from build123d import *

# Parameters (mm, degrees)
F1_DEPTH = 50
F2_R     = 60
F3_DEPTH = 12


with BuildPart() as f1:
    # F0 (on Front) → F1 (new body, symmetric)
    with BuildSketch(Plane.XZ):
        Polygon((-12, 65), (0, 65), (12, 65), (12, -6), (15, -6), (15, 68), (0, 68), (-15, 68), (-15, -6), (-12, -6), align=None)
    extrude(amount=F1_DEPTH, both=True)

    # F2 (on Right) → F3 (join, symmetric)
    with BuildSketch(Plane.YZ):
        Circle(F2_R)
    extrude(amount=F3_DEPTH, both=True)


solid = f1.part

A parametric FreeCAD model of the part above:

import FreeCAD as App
import Part
import Sketcher


def add_polygon(sketch, points):
    """Adds a closed chain of lines whose ends are joined by coincident constraints."""
    first, n = sketch.GeometryCount, len(points)
    for a, b in zip(points, points[1:] + points[:1]):
        sketch.addGeometry(Part.LineSegment(App.Vector(*a, 0), App.Vector(*b, 0)), False)
    for i in range(n):
        sketch.addConstraint(Sketcher.Constraint("Coincident", first + i, 2, first + (i + 1) % n, 1))

doc = App.newDocument("Part")
body = doc.addObject("PartDesign::Body", "Body")

sketch1 = doc.addObject("Sketcher::SketchObject", "Sketch")
body.addObject(sketch1)
sketch1.AttachmentSupport = (doc.XZ_Plane, [""])
sketch1.MapMode = "FlatFace"
add_polygon(sketch1, [(-12, 65), (12, 65), (12, -6), (15, -6), (15, 68), (-15, 68), (-15, -6), (-12, -6)])
sketch1.addConstraint([
    Sketcher.Constraint("Horizontal", 0),
    Sketcher.Constraint("Vertical", 1),
    Sketcher.Constraint("Horizontal", 2),
    Sketcher.Constraint("Vertical", 3),
    Sketcher.Constraint("Horizontal", 4),
    Sketcher.Constraint("Vertical", 5),
    Sketcher.Constraint("Horizontal", 6),
    Sketcher.Constraint("Vertical", 7),
    Sketcher.Constraint("Symmetric", 2, 2, 5, 2, -2),
    Sketcher.Constraint("Equal", 2, 6),
    Sketcher.Constraint("DistanceX", 0, 1, 0, 2, 24.0),
    Sketcher.Constraint("DistanceX", 2, 1, 2, 2, 3.0),
    Sketcher.Constraint("DistanceY", 1, 2, 1, 1, 71.0),
    Sketcher.Constraint("DistanceY", 3, 1, 3, 2, 74.0),
    Sketcher.Constraint("DistanceY", -1, 1, 0, 2, 65.0),
])
pad1 = doc.addObject("PartDesign::Pad", "Pad")
body.addObject(pad1)
pad1.Profile = sketch1
pad1.Length = 100
pad1.Midplane = True

sketch2 = doc.addObject("Sketcher::SketchObject", "Sketch001")
body.addObject(sketch2)
sketch2.AttachmentSupport = (doc.YZ_Plane, [""])
sketch2.MapMode = "FlatFace"
sketch2.addGeometry(Part.Circle(App.Vector(0, 0, 0), App.Vector(0, 0, 1), 60), False)
sketch2.addConstraint([
    Sketcher.Constraint("Coincident", 0, 3, -1, 1),
    Sketcher.Constraint("Diameter", 0, 120.0),
])
pad2 = doc.addObject("PartDesign::Pad", "Pad001")
body.addObject(pad2)
pad2.Profile = sketch2
pad2.Length = 24
pad2.Midplane = True

doc.recompute()
